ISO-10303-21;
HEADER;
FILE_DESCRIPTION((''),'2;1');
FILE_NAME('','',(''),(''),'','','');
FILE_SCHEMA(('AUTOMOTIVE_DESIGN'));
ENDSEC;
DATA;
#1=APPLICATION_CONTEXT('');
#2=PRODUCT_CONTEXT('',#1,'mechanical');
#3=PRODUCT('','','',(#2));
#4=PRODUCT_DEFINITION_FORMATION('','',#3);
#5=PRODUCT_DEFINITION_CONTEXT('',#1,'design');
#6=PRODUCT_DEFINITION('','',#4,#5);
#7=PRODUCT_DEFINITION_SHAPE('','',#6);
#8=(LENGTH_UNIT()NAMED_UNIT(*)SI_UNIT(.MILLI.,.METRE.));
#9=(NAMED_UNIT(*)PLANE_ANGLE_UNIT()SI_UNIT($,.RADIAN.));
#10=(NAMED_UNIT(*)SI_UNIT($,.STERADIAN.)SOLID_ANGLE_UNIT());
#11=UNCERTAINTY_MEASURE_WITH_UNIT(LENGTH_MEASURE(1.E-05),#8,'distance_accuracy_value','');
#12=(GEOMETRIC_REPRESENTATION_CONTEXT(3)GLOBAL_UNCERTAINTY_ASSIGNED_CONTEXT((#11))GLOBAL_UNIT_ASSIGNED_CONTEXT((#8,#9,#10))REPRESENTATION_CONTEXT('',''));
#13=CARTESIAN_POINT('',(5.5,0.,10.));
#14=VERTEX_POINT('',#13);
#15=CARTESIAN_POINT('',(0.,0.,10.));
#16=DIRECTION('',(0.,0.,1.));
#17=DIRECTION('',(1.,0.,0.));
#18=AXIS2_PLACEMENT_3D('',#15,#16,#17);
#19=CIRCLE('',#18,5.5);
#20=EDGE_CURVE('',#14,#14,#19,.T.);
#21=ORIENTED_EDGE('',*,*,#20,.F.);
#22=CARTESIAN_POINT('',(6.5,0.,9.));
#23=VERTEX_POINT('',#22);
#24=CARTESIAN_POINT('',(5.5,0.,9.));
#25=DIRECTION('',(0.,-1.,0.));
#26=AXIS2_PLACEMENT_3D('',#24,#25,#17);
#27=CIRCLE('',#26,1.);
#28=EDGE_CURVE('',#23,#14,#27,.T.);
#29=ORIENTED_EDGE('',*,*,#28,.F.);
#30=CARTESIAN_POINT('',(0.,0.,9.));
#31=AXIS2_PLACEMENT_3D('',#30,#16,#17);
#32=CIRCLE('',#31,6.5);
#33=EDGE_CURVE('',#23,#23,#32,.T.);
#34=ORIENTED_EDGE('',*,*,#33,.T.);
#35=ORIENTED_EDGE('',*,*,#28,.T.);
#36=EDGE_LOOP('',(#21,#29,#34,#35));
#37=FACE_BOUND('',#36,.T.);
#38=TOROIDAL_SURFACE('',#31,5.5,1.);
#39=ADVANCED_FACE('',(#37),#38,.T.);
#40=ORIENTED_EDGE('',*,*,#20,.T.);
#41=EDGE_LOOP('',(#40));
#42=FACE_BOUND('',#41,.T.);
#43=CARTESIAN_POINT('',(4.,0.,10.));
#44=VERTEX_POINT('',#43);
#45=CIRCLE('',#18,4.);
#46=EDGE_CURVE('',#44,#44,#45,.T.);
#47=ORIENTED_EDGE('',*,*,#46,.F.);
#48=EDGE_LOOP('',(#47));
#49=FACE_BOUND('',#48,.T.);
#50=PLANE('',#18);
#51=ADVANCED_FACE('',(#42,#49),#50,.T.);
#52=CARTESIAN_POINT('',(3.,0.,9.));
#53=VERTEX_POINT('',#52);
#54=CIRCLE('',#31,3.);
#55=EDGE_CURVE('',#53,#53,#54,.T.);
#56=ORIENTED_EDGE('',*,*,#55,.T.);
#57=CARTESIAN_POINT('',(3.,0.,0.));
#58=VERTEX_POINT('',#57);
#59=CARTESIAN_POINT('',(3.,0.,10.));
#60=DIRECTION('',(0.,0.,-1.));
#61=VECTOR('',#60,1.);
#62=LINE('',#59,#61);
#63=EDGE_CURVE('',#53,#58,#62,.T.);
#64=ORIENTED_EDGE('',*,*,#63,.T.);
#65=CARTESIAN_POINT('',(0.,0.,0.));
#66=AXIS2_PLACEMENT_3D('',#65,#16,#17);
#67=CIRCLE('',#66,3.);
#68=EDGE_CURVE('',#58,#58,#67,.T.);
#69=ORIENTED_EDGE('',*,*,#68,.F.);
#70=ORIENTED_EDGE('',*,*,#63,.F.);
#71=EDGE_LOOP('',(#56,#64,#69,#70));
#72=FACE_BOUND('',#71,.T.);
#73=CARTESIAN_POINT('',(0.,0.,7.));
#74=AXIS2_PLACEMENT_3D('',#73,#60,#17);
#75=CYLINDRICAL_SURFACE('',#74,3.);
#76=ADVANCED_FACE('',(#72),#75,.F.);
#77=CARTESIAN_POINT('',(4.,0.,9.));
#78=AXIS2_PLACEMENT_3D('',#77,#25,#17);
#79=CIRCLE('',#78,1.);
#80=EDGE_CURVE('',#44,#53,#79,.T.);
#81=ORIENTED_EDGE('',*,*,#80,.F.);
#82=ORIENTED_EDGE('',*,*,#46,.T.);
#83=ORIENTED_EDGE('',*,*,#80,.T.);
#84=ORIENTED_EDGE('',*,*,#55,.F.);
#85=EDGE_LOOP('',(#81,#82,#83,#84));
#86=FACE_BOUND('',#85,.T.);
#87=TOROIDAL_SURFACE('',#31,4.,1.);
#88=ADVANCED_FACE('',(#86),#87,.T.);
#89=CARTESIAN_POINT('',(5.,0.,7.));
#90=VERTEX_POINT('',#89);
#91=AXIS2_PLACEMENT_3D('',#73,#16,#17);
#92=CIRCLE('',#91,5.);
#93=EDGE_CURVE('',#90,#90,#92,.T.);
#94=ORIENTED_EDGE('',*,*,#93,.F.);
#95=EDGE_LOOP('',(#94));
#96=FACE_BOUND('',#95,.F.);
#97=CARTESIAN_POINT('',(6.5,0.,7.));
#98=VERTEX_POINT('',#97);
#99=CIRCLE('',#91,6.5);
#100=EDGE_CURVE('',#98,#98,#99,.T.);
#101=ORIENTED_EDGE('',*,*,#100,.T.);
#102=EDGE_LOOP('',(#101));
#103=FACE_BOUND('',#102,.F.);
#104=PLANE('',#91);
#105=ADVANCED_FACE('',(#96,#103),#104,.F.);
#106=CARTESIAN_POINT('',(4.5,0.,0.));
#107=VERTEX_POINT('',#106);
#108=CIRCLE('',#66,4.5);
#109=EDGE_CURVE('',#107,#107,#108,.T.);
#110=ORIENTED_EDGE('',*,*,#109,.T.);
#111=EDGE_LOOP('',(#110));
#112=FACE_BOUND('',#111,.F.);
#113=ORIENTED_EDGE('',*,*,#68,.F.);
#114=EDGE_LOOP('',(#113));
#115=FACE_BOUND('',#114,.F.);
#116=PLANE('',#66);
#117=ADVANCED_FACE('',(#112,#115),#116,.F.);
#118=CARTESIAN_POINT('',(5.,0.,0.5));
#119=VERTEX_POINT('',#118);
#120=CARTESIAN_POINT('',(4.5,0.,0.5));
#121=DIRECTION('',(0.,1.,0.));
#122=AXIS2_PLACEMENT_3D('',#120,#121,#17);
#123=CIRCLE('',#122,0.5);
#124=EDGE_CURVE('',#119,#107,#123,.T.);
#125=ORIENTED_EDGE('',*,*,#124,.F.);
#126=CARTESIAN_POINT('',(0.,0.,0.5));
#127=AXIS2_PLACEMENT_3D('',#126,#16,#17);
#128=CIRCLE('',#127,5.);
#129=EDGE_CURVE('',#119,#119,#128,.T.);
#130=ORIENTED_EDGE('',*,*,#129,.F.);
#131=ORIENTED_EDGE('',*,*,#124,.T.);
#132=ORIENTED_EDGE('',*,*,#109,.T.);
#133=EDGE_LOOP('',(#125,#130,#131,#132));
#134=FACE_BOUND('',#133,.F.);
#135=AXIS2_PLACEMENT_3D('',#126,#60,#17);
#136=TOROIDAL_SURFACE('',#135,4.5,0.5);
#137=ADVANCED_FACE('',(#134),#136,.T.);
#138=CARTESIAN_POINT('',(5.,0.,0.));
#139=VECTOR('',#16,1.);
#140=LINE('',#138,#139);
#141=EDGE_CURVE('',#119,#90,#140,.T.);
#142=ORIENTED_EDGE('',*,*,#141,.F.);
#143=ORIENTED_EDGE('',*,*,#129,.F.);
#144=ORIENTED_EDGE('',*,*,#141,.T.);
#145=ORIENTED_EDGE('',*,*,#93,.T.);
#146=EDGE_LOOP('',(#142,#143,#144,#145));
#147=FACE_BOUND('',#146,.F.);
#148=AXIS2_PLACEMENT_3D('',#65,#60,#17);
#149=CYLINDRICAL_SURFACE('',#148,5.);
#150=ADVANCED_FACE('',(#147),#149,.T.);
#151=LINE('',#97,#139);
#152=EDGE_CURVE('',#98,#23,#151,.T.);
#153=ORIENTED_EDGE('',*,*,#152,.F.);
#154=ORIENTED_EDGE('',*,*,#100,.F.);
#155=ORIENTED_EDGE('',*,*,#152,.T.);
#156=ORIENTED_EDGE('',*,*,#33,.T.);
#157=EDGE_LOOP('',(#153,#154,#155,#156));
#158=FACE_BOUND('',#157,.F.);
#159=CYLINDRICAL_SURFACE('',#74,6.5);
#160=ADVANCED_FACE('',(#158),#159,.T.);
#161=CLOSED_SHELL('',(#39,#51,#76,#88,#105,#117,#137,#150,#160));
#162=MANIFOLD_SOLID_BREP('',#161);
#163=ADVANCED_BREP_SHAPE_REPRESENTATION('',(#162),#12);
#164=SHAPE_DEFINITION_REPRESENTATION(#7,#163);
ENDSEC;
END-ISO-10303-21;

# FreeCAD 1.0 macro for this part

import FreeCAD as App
import Part
import Sketcher
Q = App.Units.Quantity


def edges_at(feature, points):
    """Names of the edges that pass closest to the given points."""
    edges = feature.Shape.Edges
    near = lambda p: min(range(len(edges)), key=lambda i: edges[i].distToShape(Part.Vertex(*p))[0])
    return sorted({f"Edge{near(p) + 1}" for p in points})

doc = App.newDocument("Part")
body = doc.addObject("PartDesign::Body", "Body")

sketch1 = body.newObject("Sketcher::SketchObject", "Sketch")
sketch1.AttachmentSupport = (doc.getObject("XY_Plane"), [""])
sketch1.MapMode = "FlatFace"
sketch1.addGeometry(Part.Circle(App.Vector(0, 0, 0), App.Vector(0, 0, 1), 5), False)
sketch1.addGeometry(Part.Circle(App.Vector(0, 0, 0), App.Vector(0, 0, 1), 3), False)
sketch1.addConstraint(Sketcher.Constraint("Coincident", 0, 3, -1, 1))
sketch1.addConstraint(Sketcher.Constraint("Coincident", 1, 3, -1, 1))
sketch1.addConstraint(Sketcher.Constraint("Diameter", 0, Q("10 mm")))
sketch1.addConstraint(Sketcher.Constraint("Diameter", 1, Q("6 mm")))
pad1 = body.newObject("PartDesign::Pad", "Pad")
pad1.Profile = sketch1
pad1.Length = 7

sketch2 = body.newObject("Sketcher::SketchObject", "Sketch001")
sketch2.AttachmentSupport = (doc.getObject("XY_Plane"), [""])
sketch2.MapMode = "FlatFace"
sketch2.AttachmentOffset = App.Placement(App.Vector(0, 0, 7), App.Rotation())
sketch2.addGeometry(Part.Circle(App.Vector(0, 0, 0), App.Vector(0, 0, 1), 6.5), False)
sketch2.addGeometry(Part.Circle(App.Vector(0, 0, 0), App.Vector(0, 0, 1), 3), False)
sketch2.addConstraint(Sketcher.Constraint("Coincident", 0, 3, -1, 1))
sketch2.addConstraint(Sketcher.Constraint("Coincident", 1, 3, -1, 1))
sketch2.addConstraint(Sketcher.Constraint("Diameter", 0, Q("13 mm")))
sketch2.addConstraint(Sketcher.Constraint("Diameter", 1, Q("6 mm")))
pad2 = body.newObject("PartDesign::Pad", "Pad001")
pad2.Profile = sketch2
pad2.Length = 3
doc.recompute()

fillet = body.newObject("PartDesign::Fillet", "Fillet")
fillet.Base = (pad2, edges_at(pad2, [(-6.5, 0, 10), (-3, 0, 10)]))
fillet.Radius = 1
doc.recompute()

fillet2 = body.newObject("PartDesign::Fillet", "Fillet001")
fillet2.Base = (fillet, edges_at(fillet, [(-5, 0, 0)]))
fillet2.Radius = 0.5

doc.recompute()
